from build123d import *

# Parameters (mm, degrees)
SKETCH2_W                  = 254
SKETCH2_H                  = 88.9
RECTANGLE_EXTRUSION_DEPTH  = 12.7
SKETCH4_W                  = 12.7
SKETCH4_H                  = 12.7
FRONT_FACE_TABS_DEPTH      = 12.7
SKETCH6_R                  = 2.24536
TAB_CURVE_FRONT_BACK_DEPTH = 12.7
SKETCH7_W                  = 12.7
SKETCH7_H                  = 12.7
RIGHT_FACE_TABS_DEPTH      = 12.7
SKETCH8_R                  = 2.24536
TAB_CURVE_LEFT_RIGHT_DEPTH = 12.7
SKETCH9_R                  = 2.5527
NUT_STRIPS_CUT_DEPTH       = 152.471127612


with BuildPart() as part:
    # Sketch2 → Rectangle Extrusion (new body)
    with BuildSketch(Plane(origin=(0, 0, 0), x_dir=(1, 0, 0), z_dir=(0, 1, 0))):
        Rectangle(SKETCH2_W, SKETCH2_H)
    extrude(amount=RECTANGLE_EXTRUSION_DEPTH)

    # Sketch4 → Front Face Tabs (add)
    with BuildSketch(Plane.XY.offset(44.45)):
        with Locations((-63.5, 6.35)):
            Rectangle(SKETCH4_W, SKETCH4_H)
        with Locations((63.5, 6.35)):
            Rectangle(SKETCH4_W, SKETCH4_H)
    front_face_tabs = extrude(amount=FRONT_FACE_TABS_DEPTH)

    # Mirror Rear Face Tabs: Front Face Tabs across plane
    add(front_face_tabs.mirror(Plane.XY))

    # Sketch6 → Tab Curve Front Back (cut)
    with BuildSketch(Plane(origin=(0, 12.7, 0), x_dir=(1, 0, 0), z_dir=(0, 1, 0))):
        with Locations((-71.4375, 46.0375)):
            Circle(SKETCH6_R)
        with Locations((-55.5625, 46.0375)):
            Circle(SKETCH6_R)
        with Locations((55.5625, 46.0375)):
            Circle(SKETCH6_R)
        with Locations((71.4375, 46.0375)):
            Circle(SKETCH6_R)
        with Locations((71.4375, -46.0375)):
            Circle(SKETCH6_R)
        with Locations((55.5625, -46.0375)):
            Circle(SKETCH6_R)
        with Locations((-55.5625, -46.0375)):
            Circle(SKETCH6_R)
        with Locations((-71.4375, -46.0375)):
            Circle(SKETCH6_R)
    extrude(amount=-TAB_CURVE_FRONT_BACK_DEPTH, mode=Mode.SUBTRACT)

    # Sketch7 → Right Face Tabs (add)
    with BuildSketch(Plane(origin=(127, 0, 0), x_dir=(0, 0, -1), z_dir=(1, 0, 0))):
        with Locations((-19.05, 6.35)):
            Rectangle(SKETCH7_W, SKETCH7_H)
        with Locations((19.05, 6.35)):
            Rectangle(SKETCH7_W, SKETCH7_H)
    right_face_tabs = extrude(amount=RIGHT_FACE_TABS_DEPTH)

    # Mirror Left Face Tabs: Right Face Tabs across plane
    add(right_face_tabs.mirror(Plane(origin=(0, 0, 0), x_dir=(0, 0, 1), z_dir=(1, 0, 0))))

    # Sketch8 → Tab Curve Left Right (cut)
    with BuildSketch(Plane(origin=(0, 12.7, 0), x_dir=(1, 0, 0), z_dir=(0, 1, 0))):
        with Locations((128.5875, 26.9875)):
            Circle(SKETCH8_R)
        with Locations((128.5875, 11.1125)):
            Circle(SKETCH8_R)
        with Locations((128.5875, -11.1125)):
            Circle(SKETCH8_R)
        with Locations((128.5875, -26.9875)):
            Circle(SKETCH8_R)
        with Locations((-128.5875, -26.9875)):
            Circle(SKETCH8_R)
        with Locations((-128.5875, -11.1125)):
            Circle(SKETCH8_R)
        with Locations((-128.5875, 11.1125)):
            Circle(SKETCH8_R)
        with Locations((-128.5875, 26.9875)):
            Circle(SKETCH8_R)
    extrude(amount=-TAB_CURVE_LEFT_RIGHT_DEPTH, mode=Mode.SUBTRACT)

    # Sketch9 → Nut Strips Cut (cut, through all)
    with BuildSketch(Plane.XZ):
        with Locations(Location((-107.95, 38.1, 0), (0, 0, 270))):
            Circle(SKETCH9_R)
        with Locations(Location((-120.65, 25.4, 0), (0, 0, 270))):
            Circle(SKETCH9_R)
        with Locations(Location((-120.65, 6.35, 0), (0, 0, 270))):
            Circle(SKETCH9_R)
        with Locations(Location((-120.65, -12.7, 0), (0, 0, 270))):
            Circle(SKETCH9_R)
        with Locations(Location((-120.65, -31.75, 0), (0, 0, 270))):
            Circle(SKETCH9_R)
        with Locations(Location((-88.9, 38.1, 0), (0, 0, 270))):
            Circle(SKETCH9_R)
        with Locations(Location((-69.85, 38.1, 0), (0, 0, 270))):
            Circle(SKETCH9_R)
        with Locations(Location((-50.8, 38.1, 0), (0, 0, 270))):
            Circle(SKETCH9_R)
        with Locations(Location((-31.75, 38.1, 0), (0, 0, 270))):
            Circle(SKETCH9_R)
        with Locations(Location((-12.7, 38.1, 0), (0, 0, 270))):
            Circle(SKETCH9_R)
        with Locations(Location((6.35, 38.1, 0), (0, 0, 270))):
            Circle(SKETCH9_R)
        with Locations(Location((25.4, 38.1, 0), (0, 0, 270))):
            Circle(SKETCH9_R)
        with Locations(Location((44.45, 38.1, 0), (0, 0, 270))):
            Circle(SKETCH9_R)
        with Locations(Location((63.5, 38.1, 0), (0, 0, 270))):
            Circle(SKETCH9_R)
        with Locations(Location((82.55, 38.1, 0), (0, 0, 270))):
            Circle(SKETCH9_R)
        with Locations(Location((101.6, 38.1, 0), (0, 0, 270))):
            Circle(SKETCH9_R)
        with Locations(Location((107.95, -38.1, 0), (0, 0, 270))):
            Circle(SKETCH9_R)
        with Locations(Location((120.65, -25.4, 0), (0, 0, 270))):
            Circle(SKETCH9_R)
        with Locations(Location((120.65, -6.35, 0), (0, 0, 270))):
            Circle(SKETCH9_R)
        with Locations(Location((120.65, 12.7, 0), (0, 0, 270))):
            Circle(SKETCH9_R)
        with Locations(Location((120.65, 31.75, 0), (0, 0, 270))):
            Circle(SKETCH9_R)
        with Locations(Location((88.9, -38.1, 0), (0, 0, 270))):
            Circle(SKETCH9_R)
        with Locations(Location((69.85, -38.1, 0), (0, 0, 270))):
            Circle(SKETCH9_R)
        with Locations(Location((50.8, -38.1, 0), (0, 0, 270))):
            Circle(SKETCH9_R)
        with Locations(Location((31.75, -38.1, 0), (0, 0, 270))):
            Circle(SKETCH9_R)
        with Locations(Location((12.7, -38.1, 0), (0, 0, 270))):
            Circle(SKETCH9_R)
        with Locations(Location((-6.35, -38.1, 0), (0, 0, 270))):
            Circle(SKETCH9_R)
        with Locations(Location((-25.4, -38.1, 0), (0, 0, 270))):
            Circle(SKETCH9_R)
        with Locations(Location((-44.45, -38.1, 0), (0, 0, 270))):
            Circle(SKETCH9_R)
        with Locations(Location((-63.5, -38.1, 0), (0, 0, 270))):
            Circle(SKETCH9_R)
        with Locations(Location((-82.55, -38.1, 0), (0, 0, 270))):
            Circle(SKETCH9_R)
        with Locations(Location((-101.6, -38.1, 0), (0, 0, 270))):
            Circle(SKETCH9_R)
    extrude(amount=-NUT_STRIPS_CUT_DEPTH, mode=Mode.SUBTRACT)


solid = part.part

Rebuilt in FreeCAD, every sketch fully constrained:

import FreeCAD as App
import Part
import Sketcher

V = App.Vector
Q = App.Units.Quantity


def add_polygon(sketch, points):
    """Adds a closed chain of lines whose ends are joined by coincident constraints."""
    first, n = sketch.GeometryCount, len(points)
    for a, b in zip(points, points[1:] + points[:1]):
        sketch.addGeometry(Part.LineSegment(App.Vector(*a, 0), App.Vector(*b, 0)), False)
    for i in range(n):
        sketch.addConstraint(Sketcher.Constraint("Coincident", first + i, 2, first + (i + 1) % n, 1))

doc = App.newDocument("Part")
body = doc.addObject("PartDesign::Body", "Body")

# Sketch on XZ plane
sketch1 = body.newObject("Sketcher::SketchObject", "Sketch")
sketch1.AttachmentSupport = (doc.getObject("XZ_Plane"), [""])
sketch1.MapMode = "FlatFace"
add_polygon(sketch1, [(-127, -44), (-127, 44), (127, 44), (127, -44)])  # lines 0-3
sketch1.addConstraint(Sketcher.Constraint("Vertical", 0))
sketch1.addConstraint(Sketcher.Constraint("Horizontal", 1))
sketch1.addConstraint(Sketcher.Constraint("Vertical", 2))
sketch1.addConstraint(Sketcher.Constraint("Horizontal", 3))
sketch1.addConstraint(Sketcher.Constraint("Symmetric", 0, 2, 2, 2, -1, 1))
sketch1.addConstraint(Sketcher.Constraint("DistanceX", 1, 1, 1, 2, Q("10 in")))
sketch1.addConstraint(Sketcher.Constraint("DistanceY", 0, 1, 0, 2, Q("3.5 in")))
pad1 = body.newObject("PartDesign::Pad", "Pad")
pad1.Profile = sketch1
pad1.Length = Q("0.5 in")
pad1.Reversed = True

# Sketch on XY plane
sketch2 = body.newObject("Sketcher::SketchObject", "Sketch001")
sketch2.AttachmentSupport = (doc.getObject("XY_Plane"), [""])
sketch2.MapMode = "FlatFace"
sketch2.AttachmentOffset = App.Placement(V(0, 0, 1.75 * 25.4), App.Rotation())
add_polygon(sketch2, [(-70, 13), (-70, 0), (-57, 0), (-57, 13)])  # lines 0-3
add_polygon(sketch2, [(57, 13), (57, 0), (70, 0), (70, 13)])  # lines 4-7
sketch2.addConstraint(Sketcher.Constraint("Vertical", 0))
sketch2.addConstraint(Sketcher.Constraint("Horizontal", 1))
sketch2.addConstraint(Sketcher.Constraint("Vertical", 2))
sketch2.addConstraint(Sketcher.Constraint("Horizontal", 3))
sketch2.addConstraint(Sketcher.Constraint("Vertical", 4))
sketch2.addConstraint(Sketcher.Constraint("Horizontal", 5))
sketch2.addConstraint(Sketcher.Constraint("Vertical", 6))
sketch2.addConstraint(Sketcher.Constraint("Horizontal", 7))
sketch2.addConstraint(Sketcher.Constraint("Symmetric", 1, 2, 4, 2, -1, 1))
sketch2.addConstraint(Sketcher.Constraint("Symmetric", 0, 2, 5, 2, -2))
sketch2.addConstraint(Sketcher.Constraint("Horizontal", 3, 2, 6, 2))
sketch2.addConstraint(Sketcher.Constraint("Equal", 7, 0))
sketch2.addConstraint(Sketcher.Constraint("DistanceX", 1, 1, 1, 2, Q("0.5 in")))
sketch2.addConstraint(Sketcher.Constraint("DistanceX", 0, 2, 4, 2, Q("5 in")))
pad2 = body.newObject("PartDesign::Pad", "Pad001")
pad2.Profile = sketch2
pad2.Length = Q("0.5 in")
doc.recompute()

mirrored = body.newObject("PartDesign::Mirrored", "Mirrored")
mirrored.Originals = [pad2]
mirrored.MirrorPlane = (doc.getObject("XY_Plane"), [""])
body.Tip = mirrored

# Sketch on XZ plane
sketch3 = body.newObject("Sketcher::SketchObject", "Sketch002")
sketch3.AttachmentSupport = (doc.getObject("XZ_Plane"), [""])
sketch3.MapMode = "FlatFace"
sketch3.AttachmentOffset = App.Placement(V(0, 0, -0.5 * 25.4), App.Rotation())
sketch3.addGeometry(Part.Circle(V(-71.4, -46, 0), V(0, 0, 1), 2.2), False)
sketch3.addGeometry(Part.Circle(V(-55.6, -46, 0), V(0, 0, 1), 2.2), False)
sketch3.addGeometry(Part.Circle(V(55.6, -46, 0), V(0, 0, 1), 2.2), False)
sketch3.addGeometry(Part.Circle(V(71.4, -46, 0), V(0, 0, 1), 2.2), False)
sketch3.addGeometry(Part.Circle(V(71.4, 46, 0), V(0, 0, 1), 2.2), False)
sketch3.addGeometry(Part.Circle(V(55.6, 46, 0), V(0, 0, 1), 2.2), False)
sketch3.addGeometry(Part.Circle(V(-55.6, 46, 0), V(0, 0, 1), 2.2), False)
sketch3.addGeometry(Part.Circle(V(-71.4, 46, 0), V(0, 0, 1), 2.2), False)
sketch3.addConstraint(Sketcher.Constraint("Equal", 0, 1))
sketch3.addConstraint(Sketcher.Constraint("Equal", 1, 2))
sketch3.addConstraint(Sketcher.Constraint("Equal", 2, 3))
sketch3.addConstraint(Sketcher.Constraint("Equal", 3, 4))
sketch3.addConstraint(Sketcher.Constraint("Equal", 4, 5))
sketch3.addConstraint(Sketcher.Constraint("Equal", 5, 6))
sketch3.addConstraint(Sketcher.Constraint("Equal", 6, 7))
sketch3.addConstraint(Sketcher.Constraint("Symmetric", 0, 3, 4, 3, -1, 1))
sketch3.addConstraint(Sketcher.Constraint("Symmetric", 1, 3, 5, 3, -1, 1))
sketch3.addConstraint(Sketcher.Constraint("Symmetric", 2, 3, 6, 3, -1, 1))
sketch3.addConstraint(Sketcher.Constraint("Symmetric", 3, 3, 7, 3, -1, 1))
sketch3.addConstraint(Sketcher.Constraint("Symmetric", 1, 3, 2, 3, -2))
sketch3.addConstraint(Sketcher.Constraint("Symmetric", 0, 3, 3, 3, -2))
sketch3.addConstraint(Sketcher.Constraint("Horizontal", 0, 3, 1, 3))
sketch3.addConstraint(Sketcher.Constraint("DistanceX", 0, 3, 2, 3, Q("5 in")))
sketch3.addConstraint(Sketcher.Constraint("Diameter", 0, Q("0.1768 in")))
sketch3.addConstraint(Sketcher.Constraint("DistanceX", 0, 3, -1, 1, Q("2.8125 in")))
sketch3.addConstraint(Sketcher.Constraint("DistanceY", 0, 3, -1, 1, Q("1.8125 in")))
pocket1 = body.newObject("PartDesign::Pocket", "Pocket")
pocket1.Profile = sketch3
pocket1.Length = Q("0.5 in")
pocket1.Reversed = True

# Sketch on YZ plane
sketch4 = body.newObject("Sketcher::SketchObject", "Sketch003")
sketch4.AttachmentSupport = (doc.getObject("YZ_Plane"), [""])
sketch4.MapMode = "FlatFace"
sketch4.AttachmentOffset = App.Placement(V(0, 0, 5 * 25.4), App.Rotation())
add_polygon(sketch4, [(13, 25), (0, 25), (0, 13), (13, 13)])  # lines 0-3
add_polygon(sketch4, [(13, -13), (0, -13), (0, -25), (13, -25)])  # lines 4-7
sketch4.addConstraint(Sketcher.Constraint("Horizontal", 0))
sketch4.addConstraint(Sketcher.Constraint("Vertical", 1))
sketch4.addConstraint(Sketcher.Constraint("Horizontal", 2))
sketch4.addConstraint(Sketcher.Constraint("Vertical", 3))
sketch4.addConstraint(Sketcher.Constraint("Horizontal", 4))
sketch4.addConstraint(Sketcher.Constraint("Vertical", 5))
sketch4.addConstraint(Sketcher.Constraint("Horizontal", 6))
sketch4.addConstraint(Sketcher.Constraint("Vertical", 7))
sketch4.addConstraint(Sketcher.Constraint("Symmetric", 1, 2, 4, 2, -1, 1))
sketch4.addConstraint(Sketcher.Constraint("Symmetric", 0, 2, 5, 2, -1))
sketch4.addConstraint(Sketcher.Constraint("Vertical", 3, 2, 6, 2))
sketch4.addConstraint(Sketcher.Constraint("Equal", 6, 1))
sketch4.addConstraint(Sketcher.Constraint("DistanceX", 0, 2, 0, 1, Q("0.5 in")))
sketch4.addConstraint(Sketcher.Constraint("DistanceY", -1, 1, 0, 2, Q("1 in")))
pad3 = body.newObject("PartDesign::Pad", "Pad002")
pad3.Profile = sketch4
pad3.Length = Q("0.5 in")
doc.recompute()

mirrored2 = body.newObject("PartDesign::Mirrored", "Mirrored001")
mirrored2.Originals = [pad3]
mirrored2.MirrorPlane = (doc.getObject("YZ_Plane"), [""])
body.Tip = mirrored2

# Sketch on XZ plane
sketch5 = body.newObject("Sketcher::SketchObject", "Sketch004")
sketch5.AttachmentSupport = (doc.getObject("XZ_Plane"), [""])
sketch5.MapMode = "FlatFace"
sketch5.AttachmentOffset = App.Placement(V(0, 0, -0.5 * 25.4), App.Rotation())
sketch5.addGeometry(Part.Circle(V(128.6, -27, 0), V(0, 0, 1), 2.2), False)
sketch5.addGeometry(Part.Circle(V(128.6, -11.1, 0), V(0, 0, 1), 2.2), False)
sketch5.addGeometry(Part.Circle(V(128.6, 11.1, 0), V(0, 0, 1), 2.2), False)
sketch5.addGeometry(Part.Circle(V(128.6, 27, 0), V(0, 0, 1), 2.2), False)
sketch5.addGeometry(Part.Circle(V(-128.6, 27, 0), V(0, 0, 1), 2.2), False)
sketch5.addGeometry(Part.Circle(V(-128.6, 11.1, 0), V(0, 0, 1), 2.2), False)
sketch5.addGeometry(Part.Circle(V(-128.6, -11.1, 0), V(0, 0, 1), 2.2), False)
sketch5.addGeometry(Part.Circle(V(-128.6, -27, 0), V(0, 0, 1), 2.2), False)
sketch5.addConstraint(Sketcher.Constraint("Equal", 0, 1))
sketch5.addConstraint(Sketcher.Constraint("Equal", 1, 2))
sketch5.addConstraint(Sketcher.Constraint("Equal", 2, 3))
sketch5.addConstraint(Sketcher.Constraint("Equal", 3, 4))
sketch5.addConstraint(Sketcher.Constraint("Equal", 4, 5))
sketch5.addConstraint(Sketcher.Constraint("Equal", 5, 6))
sketch5.addConstraint(Sketcher.Constraint("Equal", 6, 7))
sketch5.addConstraint(Sketcher.Constraint("Symmetric", 0, 3, 4, 3, -1, 1))
sketch5.addConstraint(Sketcher.Constraint("Symmetric", 1, 3, 5, 3, -1, 1))
sketch5.addConstraint(Sketcher.Constraint("Symmetric", 2, 3, 6, 3, -1, 1))
sketch5.addConstraint(Sketcher.Constraint("Symmetric", 3, 3, 7, 3, -1, 1))
sketch5.addConstraint(Sketcher.Constraint("Symmetric", 3, 3, 4, 3, -2))
sketch5.addConstraint(Sketcher.Constraint("Symmetric", 2, 3, 5, 3, -2))
sketch5.addConstraint(Sketcher.Constraint("Vertical", 0, 3, 1, 3))
sketch5.addConstraint(Sketcher.Constraint("Diameter", 0, Q("0.1768 in")))
sketch5.addConstraint(Sketcher.Constraint("DistanceY", 0, 3, 2, 3, Q("1.5 in")))
sketch5.addConstraint(Sketcher.Constraint("DistanceX", -1, 1, 0, 3, Q("5.0625 in")))
sketch5.addConstraint(Sketcher.Constraint("DistanceY", 0, 3, -1, 1, Q("1.0625 in")))
pocket2 = body.newObject("PartDesign::Pocket", "Pocket001")
pocket2.Profile = sketch5
pocket2.Length = Q("0.5 in")
pocket2.Reversed = True

# Sketch on XZ plane
sketch6 = body.newObject("Sketcher::SketchObject", "Sketch005")
sketch6.AttachmentSupport = (doc.getObject("XZ_Plane"), [""])
sketch6.MapMode = "FlatFace"
sketch6.addGeometry(Part.Circle(V(-108, 38.1, 0), V(0, 0, 1), 2.6), False)
sketch6.addGeometry(Part.Circle(V(-120.7, 25.4, 0), V(0, 0, 1), 2.6), False)
sketch6.addGeometry(Part.Circle(V(-120.7, 6.3, 0), V(0, 0, 1), 2.6), False)
sketch6.addGeometry(Part.Circle(V(-120.7, -12.7, 0), V(0, 0, 1), 2.6), False)
sketch6.addGeometry(Part.Circle(V(-120.7, -31.8, 0), V(0, 0, 1), 2.6), False)
sketch6.addGeometry(Part.Circle(V(-88.9, 38.1, 0), V(0, 0, 1), 2.6), False)
sketch6.addGeometry(Part.Circle(V(-69.8, 38.1, 0), V(0, 0, 1), 2.6), False)
sketch6.addGeometry(Part.Circle(V(-50.8, 38.1, 0), V(0, 0, 1), 2.6), False)
sketch6.addGeometry(Part.Circle(V(-31.8, 38.1, 0), V(0, 0, 1), 2.6), False)
sketch6.addGeometry(Part.Circle(V(-12.7, 38.1, 0), V(0, 0, 1), 2.6), False)
sketch6.addGeometry(Part.Circle(V(6.3, 38.1, 0), V(0, 0, 1), 2.6), False)
sketch6.addGeometry(Part.Circle(V(25.4, 38.1, 0), V(0, 0, 1), 2.6), False)
sketch6.addGeometry(Part.Circle(V(44.5, 38.1, 0), V(0, 0, 1), 2.6), False)
sketch6.addGeometry(Part.Circle(V(63.5, 38.1, 0), V(0, 0, 1), 2.6), False)
sketch6.addGeometry(Part.Circle(V(82.5, 38.1, 0), V(0, 0, 1), 2.6), False)
sketch6.addGeometry(Part.Circle(V(101.6, 38.1, 0), V(0, 0, 1), 2.6), False)
sketch6.addGeometry(Part.Circle(V(108, -38.1, 0), V(0, 0, 1), 2.6), False)
sketch6.addGeometry(Part.Circle(V(120.7, -25.4, 0), V(0, 0, 1), 2.6), False)
sketch6.addGeometry(Part.Circle(V(120.7, -6.3, 0), V(0, 0, 1), 2.6), False)
sketch6.addGeometry(Part.Circle(V(120.7, 12.7, 0), V(0, 0, 1), 2.6), False)
sketch6.addGeometry(Part.Circle(V(120.7, 31.8, 0), V(0, 0, 1), 2.6), False)
sketch6.addGeometry(Part.Circle(V(88.9, -38.1, 0), V(0, 0, 1), 2.6), False)
sketch6.addGeometry(Part.Circle(V(69.8, -38.1, 0), V(0, 0, 1), 2.6), False)
sketch6.addGeometry(Part.Circle(V(50.8, -38.1, 0), V(0, 0, 1), 2.6), False)
sketch6.addGeometry(Part.Circle(V(31.8, -38.1, 0), V(0, 0, 1), 2.6), False)
sketch6.addGeometry(Part.Circle(V(12.7, -38.1, 0), V(0, 0, 1), 2.6), False)
sketch6.addGeometry(Part.Circle(V(-6.3, -38.1, 0), V(0, 0, 1), 2.6), False)
sketch6.addGeometry(Part.Circle(V(-25.4, -38.1, 0), V(0, 0, 1), 2.6), False)
sketch6.addGeometry(Part.Circle(V(-44.5, -38.1, 0), V(0, 0, 1), 2.6), False)
sketch6.addGeometry(Part.Circle(V(-63.5, -38.1, 0), V(0, 0, 1), 2.6), False)
sketch6.addGeometry(Part.Circle(V(-82.5, -38.1, 0), V(0, 0, 1), 2.6), False)
sketch6.addGeometry(Part.Circle(V(-101.6, -38.1, 0), V(0, 0, 1), 2.6), False)
sketch6.addConstraint(Sketcher.Constraint("Equal", 0, 1))
sketch6.addConstraint(Sketcher.Constraint("Equal", 1, 2))
sketch6.addConstraint(Sketcher.Constraint("Equal", 2, 3))
sketch6.addConstraint(Sketcher.Constraint("Equal", 3, 4))
sketch6.addConstraint(Sketcher.Constraint("Equal", 4, 5))
sketch6.addConstraint(Sketcher.Constraint("Equal", 5, 6))
sketch6.addConstraint(Sketcher.Constraint("Equal", 6, 7))
sketch6.addConstraint(Sketcher.Constraint("Equal", 7, 8))
sketch6.addConstraint(Sketcher.Constraint("Equal", 8, 9))
sketch6.addConstraint(Sketcher.Constraint("Equal", 9, 10))
sketch6.addConstraint(Sketcher.Constraint("Equal", 10, 11))
sketch6.addConstraint(Sketcher.Constraint("Equal", 11, 12))
sketch6.addConstraint(Sketcher.Constraint("Equal", 12, 13))
sketch6.addConstraint(Sketcher.Constraint("Equal", 13, 14))
sketch6.addConstraint(Sketcher.Constraint("Equal", 14, 15))
sketch6.addConstraint(Sketcher.Constraint("Equal", 15, 16))
sketch6.addConstraint(Sketcher.Constraint("Equal", 16, 17))
sketch6.addConstraint(Sketcher.Constraint("Equal", 17, 18))
sketch6.addConstraint(Sketcher.Constraint("Equal", 18, 19))
sketch6.addConstraint(Sketcher.Constraint("Equal", 19, 20))
sketch6.addConstraint(Sketcher.Constraint("Equal", 20, 21))
sketch6.addConstraint(Sketcher.Constraint("Equal", 21, 22))
sketch6.addConstraint(Sketcher.Constraint("Equal", 22, 23))
sketch6.addConstraint(Sketcher.Constraint("Equal", 23, 24))
sketch6.addConstraint(Sketcher.Constraint("Equal", 24, 25))
sketch6.addConstraint(Sketcher.Constraint("Equal", 25, 26))
sketch6.addConstraint(Sketcher.Constraint("Equal", 26, 27))
sketch6.addConstraint(Sketcher.Constraint("Equal", 27, 28))
sketch6.addConstraint(Sketcher.Constraint("Equal", 28, 29))
sketch6.addConstraint(Sketcher.Constraint("Equal", 29, 30))
sketch6.addConstraint(Sketcher.Constraint("Equal", 30, 31))
sketch6.addConstraint(Sketcher.Constraint("Symmetric", 0, 3, 16, 3, -1, 1))
sketch6.addConstraint(Sketcher.Constraint("Symmetric", 1, 3, 17, 3, -1, 1))
sketch6.addConstraint(Sketcher.Constraint("Symmetric", 2, 3, 18, 3, -1, 1))
sketch6.addConstraint(Sketcher.Constraint("Symmetric", 3, 3, 19, 3, -1, 1))
sketch6.addConstraint(Sketcher.Constraint("Symmetric", 4, 3, 20, 3, -1, 1))
sketch6.addConstraint(Sketcher.Constraint("Symmetric", 5, 3, 21, 3, -1, 1))
sketch6.addConstraint(Sketcher.Constraint("Symmetric", 6, 3, 22, 3, -1, 1))
sketch6.addConstraint(Sketcher.Constraint("Symmetric", 7, 3, 23, 3, -1, 1))
sketch6.addConstraint(Sketcher.Constraint("Symmetric", 8, 3, 24, 3, -1, 1))
sketch6.addConstraint(Sketcher.Constraint("Symmetric", 9, 3, 25, 3, -1, 1))
sketch6.addConstraint(Sketcher.Constraint("Symmetric", 10, 3, 26, 3, -1, 1))
sketch6.addConstraint(Sketcher.Constraint("Symmetric", 11, 3, 27, 3, -1, 1))
sketch6.addConstraint(Sketcher.Constraint("Symmetric", 12, 3, 28, 3, -1, 1))
sketch6.addConstraint(Sketcher.Constraint("Symmetric", 13, 3, 29, 3, -1, 1))
sketch6.addConstraint(Sketcher.Constraint("Symmetric", 14, 3, 30, 3, -1, 1))
sketch6.addConstraint(Sketcher.Constraint("Symmetric", 15, 3, 31, 3, -1, 1))
sketch6.addConstraint(Sketcher.Constraint("Horizontal", 0, 3, 5, 3))
sketch6.addConstraint(Sketcher.Constraint("Horizontal", 5, 3, 6, 3))
sketch6.addConstraint(Sketcher.Constraint("Horizontal", 6, 3, 7, 3))
sketch6.addConstraint(Sketcher.Constraint("Horizontal", 7, 3, 8, 3))
sketch6.addConstraint(Sketcher.Constraint("Horizontal", 8, 3, 9, 3))
sketch6.addConstraint(Sketcher.Constraint("Horizontal", 9, 3, 10, 3))
sketch6.addConstraint(Sketcher.Constraint("Horizontal", 10, 3, 11, 3))
sketch6.addConstraint(Sketcher.Constraint("Horizontal", 11, 3, 12, 3))
sketch6.addConstraint(Sketcher.Constraint("Horizontal", 12, 3, 13, 3))
sketch6.addConstraint(Sketcher.Constraint("Horizontal", 13, 3, 14, 3))
sketch6.addConstraint(Sketcher.Constraint("Horizontal", 14, 3, 15, 3))
sketch6.addConstraint(Sketcher.Constraint("Vertical", 1, 3, 2, 3))
sketch6.addConstraint(Sketcher.Constraint("Vertical", 2, 3, 3, 3))
sketch6.addConstraint(Sketcher.Constraint("Vertical", 3, 3, 4, 3))
sketch6.addConstraint(Sketcher.Constraint("Diameter", 0, Q("0.201 in")))
sketch6.addConstraint(Sketcher.Constraint("DistanceY", -1, 1, 1, 3, Q("1 in")))
sketch6.addConstraint(Sketcher.Constraint("DistanceX", 7, 3, -1, 1, Q("2 in")))
sketch6.addConstraint(Sketcher.Constraint("DistanceX", -1, 1, 11, 3, Q("1 in")))
sketch6.addConstraint(Sketcher.Constraint("DistanceX", -1, 1, 15, 3, Q("4 in")))
sketch6.addConstraint(Sketcher.Constraint("DistanceY", 3, 3, 0, 3, Q("2 in")))
sketch6.addConstraint(Sketcher.Constraint("DistanceX", 1, 3, 6, 3, Q("2 in")))
sketch6.addConstraint(Sketcher.Constraint("DistanceX", 0, 3, 8, 3, Q("3 in")))
sketch6.addConstraint(Sketcher.Constraint("DistanceX", 5, 3, 9, 3, Q("3 in")))
sketch6.addConstraint(Sketcher.Constraint("DistanceX", 6, 3, 10, 3, Q("3 in")))
sketch6.addConstraint(Sketcher.Constraint("DistanceX", 8, 3, 12, 3, Q("3 in")))
sketch6.addConstraint(Sketcher.Constraint("DistanceX", 9, 3, 13, 3, Q("3 in")))
sketch6.addConstraint(Sketcher.Constraint("DistanceX", 10, 3, 14, 3, Q("3 in")))
sketch6.addConstraint(Sketcher.Constraint("DistanceY", 16, 3, 15, 3, Q("3 in")))
sketch6.addConstraint(Sketcher.Constraint("DistanceX", 14, 3, 16, 3, Q("1 in")))
sketch6.addConstraint(Sketcher.Constraint("DistanceX", 5, 3, -1, 1, Q("3.5 in")))
sketch6.addConstraint(Sketcher.Constraint("DistanceX", 1, 3, 0, 3, Q("0.5 in")))
sketch6.addConstraint(Sketcher.Constraint("DistanceY", 4, 3, 2, 3, Q("1.5 in")))
sketch6.addConstraint(Sketcher.Constraint("DistanceY", -1, 1, 2, 3, Q("0.25 in")))
pocket3 = body.newObject("PartDesign::Pocket", "Pocket002")
pocket3.Profile = sketch6
pocket3.Type = "ThroughAll"

doc.recompute()
